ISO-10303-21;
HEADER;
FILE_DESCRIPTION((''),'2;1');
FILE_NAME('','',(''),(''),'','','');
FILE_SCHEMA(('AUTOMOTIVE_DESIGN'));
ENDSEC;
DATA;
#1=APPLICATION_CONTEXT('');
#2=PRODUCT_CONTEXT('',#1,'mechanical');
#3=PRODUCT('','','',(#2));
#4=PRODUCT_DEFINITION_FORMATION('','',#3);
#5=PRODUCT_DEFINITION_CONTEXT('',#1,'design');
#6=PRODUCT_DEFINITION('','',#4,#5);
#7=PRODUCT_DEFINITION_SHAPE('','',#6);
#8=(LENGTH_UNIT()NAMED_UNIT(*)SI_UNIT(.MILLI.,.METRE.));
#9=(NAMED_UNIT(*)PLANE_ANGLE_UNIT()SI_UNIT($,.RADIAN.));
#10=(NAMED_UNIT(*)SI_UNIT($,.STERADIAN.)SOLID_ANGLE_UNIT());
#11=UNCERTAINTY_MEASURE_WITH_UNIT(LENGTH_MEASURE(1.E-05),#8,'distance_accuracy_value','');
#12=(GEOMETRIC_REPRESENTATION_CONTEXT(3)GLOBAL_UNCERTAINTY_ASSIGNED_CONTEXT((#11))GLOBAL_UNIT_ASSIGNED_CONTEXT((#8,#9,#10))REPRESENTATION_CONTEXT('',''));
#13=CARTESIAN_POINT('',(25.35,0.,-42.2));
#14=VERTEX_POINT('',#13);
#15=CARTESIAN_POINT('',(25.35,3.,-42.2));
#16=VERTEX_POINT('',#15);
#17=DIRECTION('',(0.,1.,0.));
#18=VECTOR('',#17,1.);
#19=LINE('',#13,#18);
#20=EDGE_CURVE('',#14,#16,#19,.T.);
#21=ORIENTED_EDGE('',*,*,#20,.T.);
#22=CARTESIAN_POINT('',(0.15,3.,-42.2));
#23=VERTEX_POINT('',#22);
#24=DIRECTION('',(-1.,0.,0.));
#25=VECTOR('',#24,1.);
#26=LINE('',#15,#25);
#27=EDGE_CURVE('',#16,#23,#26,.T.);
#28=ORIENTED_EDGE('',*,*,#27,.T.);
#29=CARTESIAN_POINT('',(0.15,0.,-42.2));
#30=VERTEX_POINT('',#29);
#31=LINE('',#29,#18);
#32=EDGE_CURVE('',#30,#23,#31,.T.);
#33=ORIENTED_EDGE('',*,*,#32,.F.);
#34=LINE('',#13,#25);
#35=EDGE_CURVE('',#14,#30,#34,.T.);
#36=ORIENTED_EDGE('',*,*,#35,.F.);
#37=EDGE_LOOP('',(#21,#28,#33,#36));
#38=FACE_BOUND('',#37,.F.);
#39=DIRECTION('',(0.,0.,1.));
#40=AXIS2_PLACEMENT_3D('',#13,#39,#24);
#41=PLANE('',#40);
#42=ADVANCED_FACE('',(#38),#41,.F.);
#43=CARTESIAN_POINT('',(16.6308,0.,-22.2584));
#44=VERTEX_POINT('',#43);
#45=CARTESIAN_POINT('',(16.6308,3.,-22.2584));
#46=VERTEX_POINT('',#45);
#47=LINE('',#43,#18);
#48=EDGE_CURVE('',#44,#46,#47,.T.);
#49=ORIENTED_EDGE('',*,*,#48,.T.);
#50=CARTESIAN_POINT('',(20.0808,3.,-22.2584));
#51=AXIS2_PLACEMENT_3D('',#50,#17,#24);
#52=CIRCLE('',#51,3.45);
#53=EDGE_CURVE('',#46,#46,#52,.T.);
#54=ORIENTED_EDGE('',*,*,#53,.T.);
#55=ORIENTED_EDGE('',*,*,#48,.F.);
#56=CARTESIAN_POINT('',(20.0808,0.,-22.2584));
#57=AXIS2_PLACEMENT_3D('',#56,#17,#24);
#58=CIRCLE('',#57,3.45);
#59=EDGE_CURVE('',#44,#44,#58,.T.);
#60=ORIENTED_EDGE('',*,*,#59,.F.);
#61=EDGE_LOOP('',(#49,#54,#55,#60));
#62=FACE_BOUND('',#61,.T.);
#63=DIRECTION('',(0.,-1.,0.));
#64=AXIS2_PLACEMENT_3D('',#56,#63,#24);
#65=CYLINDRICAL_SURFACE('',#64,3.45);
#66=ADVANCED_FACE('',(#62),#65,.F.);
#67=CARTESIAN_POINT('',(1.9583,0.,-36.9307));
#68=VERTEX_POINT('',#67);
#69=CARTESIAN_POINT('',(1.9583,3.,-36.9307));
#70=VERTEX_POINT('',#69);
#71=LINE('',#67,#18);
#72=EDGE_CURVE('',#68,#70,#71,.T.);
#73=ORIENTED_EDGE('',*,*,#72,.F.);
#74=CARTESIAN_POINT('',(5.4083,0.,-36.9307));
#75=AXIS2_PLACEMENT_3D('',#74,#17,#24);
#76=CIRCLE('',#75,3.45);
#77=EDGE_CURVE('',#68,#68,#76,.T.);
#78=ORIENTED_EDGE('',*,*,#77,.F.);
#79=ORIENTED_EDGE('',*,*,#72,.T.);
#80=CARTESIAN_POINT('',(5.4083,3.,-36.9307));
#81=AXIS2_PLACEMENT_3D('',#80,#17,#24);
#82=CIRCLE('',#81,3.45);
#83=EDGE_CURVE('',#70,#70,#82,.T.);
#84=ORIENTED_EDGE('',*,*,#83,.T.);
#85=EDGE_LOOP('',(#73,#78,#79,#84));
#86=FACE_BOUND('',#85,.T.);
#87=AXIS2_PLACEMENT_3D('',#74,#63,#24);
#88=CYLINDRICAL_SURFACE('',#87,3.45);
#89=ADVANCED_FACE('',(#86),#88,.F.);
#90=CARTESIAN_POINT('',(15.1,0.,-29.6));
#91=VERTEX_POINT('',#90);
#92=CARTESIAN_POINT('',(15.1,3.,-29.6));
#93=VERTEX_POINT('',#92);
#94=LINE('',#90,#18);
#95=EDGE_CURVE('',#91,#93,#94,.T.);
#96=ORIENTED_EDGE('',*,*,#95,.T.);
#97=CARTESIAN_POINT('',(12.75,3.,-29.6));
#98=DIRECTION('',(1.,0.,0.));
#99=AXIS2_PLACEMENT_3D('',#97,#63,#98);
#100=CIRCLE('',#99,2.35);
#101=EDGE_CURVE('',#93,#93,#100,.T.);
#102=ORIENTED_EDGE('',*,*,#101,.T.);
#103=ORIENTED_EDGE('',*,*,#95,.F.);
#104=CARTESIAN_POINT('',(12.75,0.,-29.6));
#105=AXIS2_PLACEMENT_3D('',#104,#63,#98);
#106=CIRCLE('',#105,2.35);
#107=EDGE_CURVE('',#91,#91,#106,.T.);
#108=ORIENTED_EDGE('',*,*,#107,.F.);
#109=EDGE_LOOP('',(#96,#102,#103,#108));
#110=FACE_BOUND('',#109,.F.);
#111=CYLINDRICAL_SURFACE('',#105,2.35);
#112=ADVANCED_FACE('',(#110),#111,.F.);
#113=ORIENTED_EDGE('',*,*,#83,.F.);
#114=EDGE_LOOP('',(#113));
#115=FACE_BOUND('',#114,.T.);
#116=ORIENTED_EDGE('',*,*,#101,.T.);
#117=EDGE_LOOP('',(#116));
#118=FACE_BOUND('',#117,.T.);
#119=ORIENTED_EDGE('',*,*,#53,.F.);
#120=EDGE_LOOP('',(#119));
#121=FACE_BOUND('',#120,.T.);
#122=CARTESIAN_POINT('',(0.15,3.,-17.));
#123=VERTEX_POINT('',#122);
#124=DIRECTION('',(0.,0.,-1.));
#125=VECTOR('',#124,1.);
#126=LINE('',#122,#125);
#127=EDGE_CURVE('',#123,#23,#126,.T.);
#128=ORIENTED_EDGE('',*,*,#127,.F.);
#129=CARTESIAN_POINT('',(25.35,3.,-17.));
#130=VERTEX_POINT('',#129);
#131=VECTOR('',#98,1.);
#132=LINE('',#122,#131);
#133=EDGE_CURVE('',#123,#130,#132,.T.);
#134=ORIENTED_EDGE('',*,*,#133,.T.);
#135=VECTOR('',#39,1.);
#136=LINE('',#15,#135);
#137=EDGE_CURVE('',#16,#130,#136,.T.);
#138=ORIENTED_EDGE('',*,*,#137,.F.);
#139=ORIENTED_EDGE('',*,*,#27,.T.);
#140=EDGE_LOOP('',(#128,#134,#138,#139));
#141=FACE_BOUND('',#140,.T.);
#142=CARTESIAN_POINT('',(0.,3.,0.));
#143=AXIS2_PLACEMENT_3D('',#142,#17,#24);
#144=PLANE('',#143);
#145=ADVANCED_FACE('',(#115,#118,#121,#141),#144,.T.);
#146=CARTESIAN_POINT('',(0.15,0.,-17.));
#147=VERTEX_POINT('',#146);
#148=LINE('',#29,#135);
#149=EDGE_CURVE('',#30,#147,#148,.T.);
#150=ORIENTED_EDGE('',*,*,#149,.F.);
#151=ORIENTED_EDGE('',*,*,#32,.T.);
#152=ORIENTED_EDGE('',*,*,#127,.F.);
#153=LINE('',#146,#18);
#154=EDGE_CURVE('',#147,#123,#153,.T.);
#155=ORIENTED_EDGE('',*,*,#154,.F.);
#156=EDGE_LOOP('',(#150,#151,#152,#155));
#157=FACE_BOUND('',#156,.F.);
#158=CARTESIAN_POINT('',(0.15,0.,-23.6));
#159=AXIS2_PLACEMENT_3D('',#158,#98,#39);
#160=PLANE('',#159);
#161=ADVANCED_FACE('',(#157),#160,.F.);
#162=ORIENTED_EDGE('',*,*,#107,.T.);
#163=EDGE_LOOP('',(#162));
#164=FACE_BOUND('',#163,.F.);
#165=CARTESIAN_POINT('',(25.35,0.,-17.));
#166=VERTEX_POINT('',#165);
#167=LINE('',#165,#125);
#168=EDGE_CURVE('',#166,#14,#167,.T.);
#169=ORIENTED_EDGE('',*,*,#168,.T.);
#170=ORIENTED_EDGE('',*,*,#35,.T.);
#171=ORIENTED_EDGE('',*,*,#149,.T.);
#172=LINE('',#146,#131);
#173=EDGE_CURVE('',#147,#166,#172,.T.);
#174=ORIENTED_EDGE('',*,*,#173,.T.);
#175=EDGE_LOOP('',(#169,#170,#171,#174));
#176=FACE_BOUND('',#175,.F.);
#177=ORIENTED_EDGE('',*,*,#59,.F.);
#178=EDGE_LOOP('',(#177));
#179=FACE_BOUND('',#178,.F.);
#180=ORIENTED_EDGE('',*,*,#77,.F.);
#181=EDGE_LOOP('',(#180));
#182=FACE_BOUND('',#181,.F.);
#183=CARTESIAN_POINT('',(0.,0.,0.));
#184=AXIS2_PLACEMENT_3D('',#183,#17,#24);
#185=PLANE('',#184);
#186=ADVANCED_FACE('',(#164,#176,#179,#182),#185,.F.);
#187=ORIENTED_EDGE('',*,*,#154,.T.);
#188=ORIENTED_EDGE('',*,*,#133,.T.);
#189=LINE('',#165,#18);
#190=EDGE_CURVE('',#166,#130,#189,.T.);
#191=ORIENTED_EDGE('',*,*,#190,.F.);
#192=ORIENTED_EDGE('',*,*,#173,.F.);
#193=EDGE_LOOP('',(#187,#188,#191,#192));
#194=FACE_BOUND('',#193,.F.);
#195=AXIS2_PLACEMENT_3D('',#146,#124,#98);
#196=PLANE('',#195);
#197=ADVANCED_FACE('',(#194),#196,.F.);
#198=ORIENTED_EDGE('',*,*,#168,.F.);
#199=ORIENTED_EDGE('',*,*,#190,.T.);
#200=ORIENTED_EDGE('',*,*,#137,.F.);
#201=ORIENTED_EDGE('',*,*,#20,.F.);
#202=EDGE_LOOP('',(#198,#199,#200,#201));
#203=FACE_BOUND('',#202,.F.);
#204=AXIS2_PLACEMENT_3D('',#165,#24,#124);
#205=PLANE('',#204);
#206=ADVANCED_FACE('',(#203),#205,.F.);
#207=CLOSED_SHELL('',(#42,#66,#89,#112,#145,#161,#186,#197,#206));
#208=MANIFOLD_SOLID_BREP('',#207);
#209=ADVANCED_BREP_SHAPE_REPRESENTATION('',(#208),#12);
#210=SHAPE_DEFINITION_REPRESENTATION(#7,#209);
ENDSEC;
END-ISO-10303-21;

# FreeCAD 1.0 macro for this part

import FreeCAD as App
import Part
import Sketcher

doc = App.newDocument("Part")
body = doc.addObject("PartDesign::Body", "Body")

# Sketch on XZ plane
sketch1 = doc.addObject("Sketcher::SketchObject", "Sketch")
body.addObject(sketch1)
sketch1.AttachmentSupport = (doc.XZ_Plane, [""])
sketch1.MapMode = "FlatFace"
sketch1.addGeometry([
    Part.LineSegment(App.Vector(0.15, -17, 0), App.Vector(25.35, -17, 0)),  # 0
    Part.LineSegment(App.Vector(25.35, -17, 0), App.Vector(25.35, -42.2, 0)),  # 1
    Part.LineSegment(App.Vector(25.35, -42.2, 0), App.Vector(0.15, -42.2, 0)),  # 2
    Part.LineSegment(App.Vector(0.15, -42.2, 0), App.Vector(0.15, -17, 0)),  # 3
    Part.Circle(App.Vector(5.4083, -36.9307, 0), App.Vector(0, 0, 1), 3.45),  # 4
    Part.Circle(App.Vector(20.0808, -22.2584, 0), App.Vector(0, 0, 1), 3.45),  # 5
    Part.Circle(App.Vector(12.75, -29.6, 0), App.Vector(0, 0, 1), 2.075),  # 6
], False)
sketch1.addConstraint([
    Sketcher.Constraint("Coincident", 0, 2, 1, 1),
    Sketcher.Constraint("Coincident", 1, 2, 2, 1),
    Sketcher.Constraint("Coincident", 2, 2, 3, 1),
    Sketcher.Constraint("Coincident", 3, 2, 0, 1),
    Sketcher.Constraint("Horizontal", 0),
    Sketcher.Constraint("Vertical", 1),
    Sketcher.Constraint("Horizontal", 2),
    Sketcher.Constraint("Vertical", 3),
    Sketcher.Constraint("Equal", 4, 5),
    Sketcher.Constraint("Equal", 2, 1),
    Sketcher.Constraint("Diameter", 6, 4.15),
    Sketcher.Constraint("DistanceX", 0, 1, 0, 2, 25.2),
    Sketcher.Constraint("Diameter", 4, 6.9),
    Sketcher.Constraint("DistanceY", 0, 2, -1, 1, 17.0),
    Sketcher.Constraint("DistanceY", 6, 3, -1, 1, 29.6),
    Sketcher.Constraint("DistanceX", 6, 3, 0, 2, 12.6),
    Sketcher.Constraint("DistanceX", -1, 1, 6, 3, 12.75),
    Sketcher.Constraint("DistanceX", -1, 1, 4, 3, 5.4083),
    Sketcher.Constraint("DistanceY", 4, 3, -1, 1, 36.9307),
    Sketcher.Constraint("DistanceX", -1, 1, 5, 3, 20.0808),
    Sketcher.Constraint("DistanceY", 5, 3, -1, 1, 22.2584),
])
pad1 = doc.addObject("PartDesign::Pad", "Pad")
body.addObject(pad1)
pad1.Profile = sketch1
pad1.Length = 3
pad1.Reversed = True

# Sketch on XZ plane
sketch2 = doc.addObject("Sketcher::SketchObject", "Sketch001")
body.addObject(sketch2)
sketch2.AttachmentSupport = (doc.XZ_Plane, [""])
sketch2.MapMode = "FlatFace"
sketch2.addGeometry([
    Part.Circle(App.Vector(12.75, -29.6, 0), App.Vector(0, 0, 1), 2.15),
    Part.Circle(App.Vector(12.75, -29.6, 0), App.Vector(0, 0, 1), 2.075),
], False)
sketch2.addConstraint([
    Sketcher.Constraint("Coincident", 1, 3, 0, 3),
    Sketcher.Constraint("Diameter", 0, 4.3),
    Sketcher.Constraint("Diameter", 1, 4.15),
    Sketcher.Constraint("DistanceY", 0, 3, -1, 1, 29.6),
    Sketcher.Constraint("DistanceX", -1, 1, 0, 3, 12.75),
])
pocket1 = doc.addObject("PartDesign::Pocket", "Pocket")
body.addObject(pocket1)
pocket1.Profile = sketch2
pocket1.Length = 10

# Sketch on XZ plane
sketch3 = doc.addObject("Sketcher::SketchObject", "Sketch002")
body.addObject(sketch3)
sketch3.AttachmentSupport = (doc.XZ_Plane, [""])
sketch3.MapMode = "FlatFace"
sketch3.addGeometry([
    Part.Circle(App.Vector(12.75, -29.6, 0), App.Vector(0, 0, 1), 2.35),
    Part.Circle(App.Vector(12.75, -29.6, 0), App.Vector(0, 0, 1), 2.15),
], False)
sketch3.addConstraint([
    Sketcher.Constraint("Coincident", 1, 3, 0, 3),
    Sketcher.Constraint("Diameter", 0, 4.7),
    Sketcher.Constraint("Diameter", 1, 4.3),
    Sketcher.Constraint("DistanceY", 0, 3, -1, 1, 29.6),
    Sketcher.Constraint("DistanceX", -1, 1, 0, 3, 12.75),
])
pocket2 = doc.addObject("PartDesign::Pocket", "Pocket001")
body.addObject(pocket2)
pocket2.Profile = sketch3
pocket2.Length = 10

doc.recompute()
